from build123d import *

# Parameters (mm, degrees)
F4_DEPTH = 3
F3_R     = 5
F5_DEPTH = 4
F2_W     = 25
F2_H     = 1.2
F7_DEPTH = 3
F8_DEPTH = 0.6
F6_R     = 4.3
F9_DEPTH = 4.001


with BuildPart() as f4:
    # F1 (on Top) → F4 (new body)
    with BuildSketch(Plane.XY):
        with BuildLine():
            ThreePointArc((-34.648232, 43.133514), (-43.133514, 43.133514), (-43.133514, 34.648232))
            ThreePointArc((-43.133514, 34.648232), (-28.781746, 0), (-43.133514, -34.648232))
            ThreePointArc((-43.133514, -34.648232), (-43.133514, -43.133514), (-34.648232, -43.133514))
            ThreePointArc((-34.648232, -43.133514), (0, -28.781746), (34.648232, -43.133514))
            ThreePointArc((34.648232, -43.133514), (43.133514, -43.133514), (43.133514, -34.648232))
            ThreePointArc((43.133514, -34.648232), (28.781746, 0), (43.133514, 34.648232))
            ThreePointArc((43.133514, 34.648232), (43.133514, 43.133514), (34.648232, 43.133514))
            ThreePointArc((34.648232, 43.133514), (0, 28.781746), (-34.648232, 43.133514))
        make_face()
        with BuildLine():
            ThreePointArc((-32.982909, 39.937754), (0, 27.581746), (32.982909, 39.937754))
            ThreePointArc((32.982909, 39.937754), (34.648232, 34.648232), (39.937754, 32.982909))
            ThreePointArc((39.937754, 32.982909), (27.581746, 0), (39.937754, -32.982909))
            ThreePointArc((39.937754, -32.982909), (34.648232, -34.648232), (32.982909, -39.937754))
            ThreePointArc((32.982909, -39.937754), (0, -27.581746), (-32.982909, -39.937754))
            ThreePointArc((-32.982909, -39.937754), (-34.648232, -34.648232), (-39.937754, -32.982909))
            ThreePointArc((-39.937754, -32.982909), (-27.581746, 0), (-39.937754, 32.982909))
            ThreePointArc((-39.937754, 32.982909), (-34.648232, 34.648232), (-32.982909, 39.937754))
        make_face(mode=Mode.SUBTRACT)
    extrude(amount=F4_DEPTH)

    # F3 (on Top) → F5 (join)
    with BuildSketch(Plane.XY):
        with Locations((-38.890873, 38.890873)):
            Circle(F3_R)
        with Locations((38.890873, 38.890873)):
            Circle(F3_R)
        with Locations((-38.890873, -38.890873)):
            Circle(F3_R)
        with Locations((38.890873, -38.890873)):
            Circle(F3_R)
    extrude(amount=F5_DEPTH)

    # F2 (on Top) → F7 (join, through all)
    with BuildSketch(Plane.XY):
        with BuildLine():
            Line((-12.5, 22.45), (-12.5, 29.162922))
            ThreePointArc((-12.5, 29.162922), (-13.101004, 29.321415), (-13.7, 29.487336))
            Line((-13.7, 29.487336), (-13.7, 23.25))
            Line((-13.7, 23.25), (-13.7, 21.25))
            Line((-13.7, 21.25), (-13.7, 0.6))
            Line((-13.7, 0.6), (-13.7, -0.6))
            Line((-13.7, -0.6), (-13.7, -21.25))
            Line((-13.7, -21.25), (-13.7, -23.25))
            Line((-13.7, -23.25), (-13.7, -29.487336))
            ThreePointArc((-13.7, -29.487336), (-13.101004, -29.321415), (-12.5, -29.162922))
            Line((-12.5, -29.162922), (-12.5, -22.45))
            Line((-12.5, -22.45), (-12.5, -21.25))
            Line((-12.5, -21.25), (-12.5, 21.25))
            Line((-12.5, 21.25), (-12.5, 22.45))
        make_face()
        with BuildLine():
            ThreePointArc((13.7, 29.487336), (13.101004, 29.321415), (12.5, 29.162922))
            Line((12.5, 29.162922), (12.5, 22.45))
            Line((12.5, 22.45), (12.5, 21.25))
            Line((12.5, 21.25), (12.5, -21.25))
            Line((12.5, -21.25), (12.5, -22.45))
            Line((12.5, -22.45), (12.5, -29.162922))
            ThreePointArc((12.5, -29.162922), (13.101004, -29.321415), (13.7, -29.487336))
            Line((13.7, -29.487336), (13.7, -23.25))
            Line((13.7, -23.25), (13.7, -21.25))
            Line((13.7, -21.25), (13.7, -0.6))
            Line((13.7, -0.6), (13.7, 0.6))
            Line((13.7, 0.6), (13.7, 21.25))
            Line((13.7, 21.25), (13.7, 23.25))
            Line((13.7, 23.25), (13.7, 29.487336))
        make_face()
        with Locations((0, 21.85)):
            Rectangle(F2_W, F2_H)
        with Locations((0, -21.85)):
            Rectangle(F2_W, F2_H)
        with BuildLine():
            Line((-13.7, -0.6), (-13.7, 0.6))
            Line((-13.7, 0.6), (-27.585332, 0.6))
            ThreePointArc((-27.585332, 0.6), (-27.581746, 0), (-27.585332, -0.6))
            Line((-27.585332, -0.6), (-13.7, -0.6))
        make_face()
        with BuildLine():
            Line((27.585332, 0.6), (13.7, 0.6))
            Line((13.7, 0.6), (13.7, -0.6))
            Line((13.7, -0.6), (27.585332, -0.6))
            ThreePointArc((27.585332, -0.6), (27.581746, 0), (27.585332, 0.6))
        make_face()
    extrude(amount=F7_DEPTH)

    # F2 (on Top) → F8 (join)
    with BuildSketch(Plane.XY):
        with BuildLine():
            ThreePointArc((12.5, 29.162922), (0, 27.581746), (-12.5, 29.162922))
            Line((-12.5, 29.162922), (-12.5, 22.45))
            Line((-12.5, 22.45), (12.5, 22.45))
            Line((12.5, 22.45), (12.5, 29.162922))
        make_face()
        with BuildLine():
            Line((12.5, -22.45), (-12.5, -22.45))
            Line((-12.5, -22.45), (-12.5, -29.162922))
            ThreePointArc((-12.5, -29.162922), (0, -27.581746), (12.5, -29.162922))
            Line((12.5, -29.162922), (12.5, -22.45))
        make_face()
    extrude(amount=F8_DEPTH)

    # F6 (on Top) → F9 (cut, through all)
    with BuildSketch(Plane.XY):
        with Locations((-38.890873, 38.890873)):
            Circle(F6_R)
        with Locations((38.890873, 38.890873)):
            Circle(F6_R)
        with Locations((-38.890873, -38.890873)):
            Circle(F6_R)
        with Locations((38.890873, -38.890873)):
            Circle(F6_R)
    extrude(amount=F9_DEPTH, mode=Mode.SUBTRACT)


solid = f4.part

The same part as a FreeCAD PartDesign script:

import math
import FreeCAD as App
import Part
import Sketcher
Q = App.Units.Quantity

doc = App.newDocument("Part")
params = doc.addObject("Spreadsheet::Sheet", "Params")
for row, (alias, value) in enumerate([
    ("sketch1_radius", "6 mm"),
    ("sketch1_radius2", "48.999999 mm"),
    ("sketch1_radius3", "50.200001 mm"),
    ("pad1_length", "3 mm"),
    ("sketch2_diameter", "10 mm"),
    ("pad2_length", "4 mm"),
    ("sketch3_width", "25 mm"),
    ("sketch3_height", "42.5 mm"),
    ("pad3_length", "3 mm"),
    ("sketch4_width", "25 mm"),
    ("pad4_length", "0.6 mm"),
    ("sketch5_diameter", "8.6 mm"),
], start=1):
    params.set(f"A{row}", alias)
    params.set(f"B{row}", "=" + value)
    params.setAlias(f"B{row}", alias)

body = doc.addObject("PartDesign::Body", "Body")

# Sketch on XY plane
sketch1 = doc.addObject("Sketcher::SketchObject", "Sketch")
body.addObject(sketch1)
sketch1.AttachmentSupport = (doc.XY_Plane, [""])
sketch1.MapMode = "FlatFace"
sketch1.addGeometry(Part.ArcOfCircle(Part.Circle(App.Vector(-38.890873, 38.890873, 0), App.Vector(0, 0, 1), 6), math.radians(45), math.radians(225)), False)
sketch1.addGeometry(Part.ArcOfCircle(Part.Circle(App.Vector(-77.781745, 0, 0), App.Vector(0, 0, 1), 48.999999), math.radians(-45.000001), math.radians(45.000001)), False)
sketch1.addGeometry(Part.ArcOfCircle(Part.Circle(App.Vector(-38.890873, -38.890873, 0), App.Vector(0, 0, 1), 6), math.radians(135), math.radians(315)), False)
sketch1.addGeometry(Part.ArcOfCircle(Part.Circle(App.Vector(0, -77.781745, 0), App.Vector(0, 0, 1), 48.999999), math.radians(44.999999), math.radians(135.000001)), False)
sketch1.addGeometry(Part.ArcOfCircle(Part.Circle(App.Vector(38.890873, -38.890873, 0), App.Vector(0, 0, 1), 6), math.radians(-135), math.radians(45)), False)
sketch1.addGeometry(Part.ArcOfCircle(Part.Circle(App.Vector(77.781745, 0, 0), App.Vector(0, 0, 1), 48.999999), math.radians(134.999999), math.radians(225.000001)), False)
sketch1.addGeometry(Part.ArcOfCircle(Part.Circle(App.Vector(38.890873, 38.890873, 0), App.Vector(0, 0, 1), 6), math.radians(-45), math.radians(135)), False)
sketch1.addGeometry(Part.ArcOfCircle(Part.Circle(App.Vector(0, 77.781745, 0), App.Vector(0, 0, 1), 48.999999), math.radians(-135.000001), math.radians(-44.999999)), False)
sketch1.addGeometry(Part.ArcOfCircle(Part.Circle(App.Vector(-38.890872, 38.890872, 0), App.Vector(0, 0, 1), 5.999999), math.radians(-100.048419), math.radians(10.048419)), False)
sketch1.addGeometry(Part.ArcOfCircle(Part.Circle(App.Vector(0, 77.781747, 0), App.Vector(0, 0, 1), 50.200001), math.radians(-131.073759), math.radians(-48.926241)), False)
sketch1.addGeometry(Part.ArcOfCircle(Part.Circle(App.Vector(38.890872, 38.890872, 0), App.Vector(0, 0, 1), 5.999999), math.radians(169.951581), math.radians(280.048419)), False)
sketch1.addGeometry(Part.ArcOfCircle(Part.Circle(App.Vector(77.781747, 0, 0), App.Vector(0, 0, 1), 50.200001), math.radians(138.926241), math.radians(221.073759)), False)
sketch1.addGeometry(Part.ArcOfCircle(Part.Circle(App.Vector(38.890872, -38.890872, 0), App.Vector(0, 0, 1), 5.999999), math.radians(79.951581), math.radians(190.048419)), False)
sketch1.addGeometry(Part.ArcOfCircle(Part.Circle(App.Vector(0, -77.781747, 0), App.Vector(0, 0, 1), 50.200001), math.radians(48.926241), math.radians(131.073759)), False)
sketch1.addGeometry(Part.ArcOfCircle(Part.Circle(App.Vector(-38.890872, -38.890872, 0), App.Vector(0, 0, 1), 5.999999), math.radians(-10.048419), math.radians(100.048419)), False)
sketch1.addGeometry(Part.ArcOfCircle(Part.Circle(App.Vector(-77.781747, 0, 0), App.Vector(0, 0, 1), 50.200001), math.radians(-41.073759), math.radians(41.073759)), False)
sketch1.addConstraint(Sketcher.Constraint("Tangent", 0, 2, 1, 2))
sketch1.addConstraint(Sketcher.Constraint("Tangent", 1, 1, 2, 1))
sketch1.addConstraint(Sketcher.Constraint("Tangent", 2, 2, 3, 2))
sketch1.addConstraint(Sketcher.Constraint("Tangent", 3, 1, 4, 1))
sketch1.addConstraint(Sketcher.Constraint("Tangent", 4, 2, 5, 2))
sketch1.addConstraint(Sketcher.Constraint("Tangent", 5, 1, 6, 1))
sketch1.addConstraint(Sketcher.Constraint("Tangent", 6, 2, 7, 2))
sketch1.addConstraint(Sketcher.Constraint("Tangent", 7, 1, 0, 1))
sketch1.addConstraint(Sketcher.Constraint("Coincident", 8, 2, 9, 1))
sketch1.addConstraint(Sketcher.Constraint("Coincident", 9, 2, 10, 1))
sketch1.addConstraint(Sketcher.Constraint("Coincident", 10, 2, 11, 1))
sketch1.addConstraint(Sketcher.Constraint("Coincident", 11, 2, 12, 1))
sketch1.addConstraint(Sketcher.Constraint("Coincident", 12, 2, 13, 1))
sketch1.addConstraint(Sketcher.Constraint("Coincident", 13, 2, 14, 1))
sketch1.addConstraint(Sketcher.Constraint("Coincident", 14, 2, 15, 1))
sketch1.addConstraint(Sketcher.Constraint("Coincident", 15, 2, 8, 1))
sketch1.addConstraint(Sketcher.Constraint("Coincident", 8, 3, 0, 3))
sketch1.addConstraint(Sketcher.Constraint("Coincident", 9, 3, 7, 3))
sketch1.addConstraint(Sketcher.Constraint("Coincident", 10, 3, 6, 3))
sketch1.addConstraint(Sketcher.Constraint("Coincident", 11, 3, 5, 3))
sketch1.addConstraint(Sketcher.Constraint("Coincident", 12, 3, 4, 3))
sketch1.addConstraint(Sketcher.Constraint("Coincident", 13, 3, 3, 3))
sketch1.addConstraint(Sketcher.Constraint("Coincident", 14, 3, 2, 3))
sketch1.addConstraint(Sketcher.Constraint("Coincident", 15, 3, 1, 3))
sketch1.addConstraint(Sketcher.Constraint("Equal", 0, 2))
sketch1.addConstraint(Sketcher.Constraint("Equal", 1, 3))
sketch1.addConstraint(Sketcher.Constraint("Equal", 2, 4))
sketch1.addConstraint(Sketcher.Constraint("Equal", 3, 5))
sketch1.addConstraint(Sketcher.Constraint("Equal", 4, 6))
sketch1.addConstraint(Sketcher.Constraint("Equal", 5, 7))
sketch1.addConstraint(Sketcher.Constraint("Equal", 6, 8))
sketch1.addConstraint(Sketcher.Constraint("Equal", 8, 10))
sketch1.addConstraint(Sketcher.Constraint("Equal", 9, 11))
sketch1.addConstraint(Sketcher.Constraint("Equal", 10, 12))
sketch1.addConstraint(Sketcher.Constraint("Equal", 11, 13))
sketch1.addConstraint(Sketcher.Constraint("Equal", 12, 14))
sketch1.addConstraint(Sketcher.Constraint("Equal", 13, 15))
sketch1.addConstraint(Sketcher.Constraint("Symmetric", 0, 3, 4, 3, -1, 1))
sketch1.addConstraint(Sketcher.Constraint("Symmetric", 2, 3, 6, 3, -1, 1))
sketch1.addConstraint(Sketcher.Constraint("Symmetric", 2, 3, 4, 3, -2))
sketch1.addConstraint(Sketcher.Constraint("Radius", 0, Q("6 mm")))
sketch1.addConstraint(Sketcher.Constraint("Radius", 1, Q("48.999999 mm")))
sketch1.addConstraint(Sketcher.Constraint("Radius", 9, Q("50.200001 mm")))
sketch1.addConstraint(Sketcher.Constraint("DistanceY", 1, 1, -1, 1, Q("34.648232 mm")))
sketch1.addConstraint(Sketcher.Constraint("DistanceX", -1, 1, 3, 1, Q("34.648232 mm")))
sketch1.setExpression("Constraints[40]", "Params.sketch1_radius")
sketch1.setExpression("Constraints[41]", "Params.sketch1_radius2")
sketch1.setExpression("Constraints[42]", "Params.sketch1_radius3")
pad1 = doc.addObject("PartDesign::Pad", "Pad")
body.addObject(pad1)
pad1.Profile = sketch1
pad1.setExpression("Length", "Params.pad1_length")

# Sketch on XY plane
sketch2 = doc.addObject("Sketcher::SketchObject", "Sketch001")
body.addObject(sketch2)
sketch2.AttachmentSupport = (doc.XY_Plane, [""])
sketch2.MapMode = "FlatFace"
sketch2.addGeometry(Part.Circle(App.Vector(-38.890873, 38.890873, 0), App.Vector(0, 0, 1), 5), False)
sketch2.addGeometry(Part.Circle(App.Vector(38.890873, 38.890873, 0), App.Vector(0, 0, 1), 5), False)
sketch2.addGeometry(Part.Circle(App.Vector(-38.890873, -38.890873, 0), App.Vector(0, 0, 1), 5), False)
sketch2.addGeometry(Part.Circle(App.Vector(38.890873, -38.890873, 0), App.Vector(0, 0, 1), 5), False)
sketch2.addConstraint(Sketcher.Constraint("Equal", 0, 1))
sketch2.addConstraint(Sketcher.Constraint("Equal", 1, 2))
sketch2.addConstraint(Sketcher.Constraint("Equal", 2, 3))
sketch2.addConstraint(Sketcher.Constraint("Symmetric", 1, 3, 2, 3, -1, 1))
sketch2.addConstraint(Sketcher.Constraint("Symmetric", 0, 3, 3, 3, -1, 1))
sketch2.addConstraint(Sketcher.Constraint("Symmetric", 0, 3, 1, 3, -2))
sketch2.addConstraint(Sketcher.Constraint("Diameter", 0, Q("10 mm")))
sketch2.addConstraint(Sketcher.Constraint("DistanceX", 0, 3, -1, 1, Q("38.890873 mm")))
sketch2.addConstraint(Sketcher.Constraint("DistanceY", -1, 1, 0, 3, Q("38.890873 mm")))
sketch2.setExpression("Constraints[6]", "Params.sketch2_diameter")
pad2 = doc.addObject("PartDesign::Pad", "Pad001")
body.addObject(pad2)
pad2.Profile = sketch2
pad2.setExpression("Length", "Params.pad2_length")

# Sketch on XY plane
sketch3 = doc.addObject("Sketcher::SketchObject", "Sketch002")
body.addObject(sketch3)
sketch3.AttachmentSupport = (doc.XY_Plane, [""])
sketch3.MapMode = "FlatFace"
sketch3.addGeometry(Part.ArcOfCircle(Part.Circle(App.Vector(0.001895, 77.78874, 0), App.Vector(0, 0, 1), 50.207246), math.radians(-105.837307), math.radians(-104.418688)), False)
sketch3.addGeometry(Part.LineSegment(App.Vector(-13.7, 29.487336, 0), App.Vector(-13.7, 0.6, 0)), False)
sketch3.addGeometry(Part.LineSegment(App.Vector(-13.7, 0.6, 0), App.Vector(-27.585332, 0.6, 0)), False)
sketch3.addGeometry(Part.ArcOfCircle(Part.Circle(App.Vector(-77.778743, 0, 0), App.Vector(0, 0, 1), 50.196997), math.radians(-0.684867), math.radians(0.684867)), False)
sketch3.addGeometry(Part.LineSegment(App.Vector(-27.585332, -0.6, 0), App.Vector(-13.7, -0.6, 0)), False)
sketch3.addGeometry(Part.LineSegment(App.Vector(-13.7, -0.6, 0), App.Vector(-13.7, -29.487336, 0)), False)
sketch3.addGeometry(Part.ArcOfCircle(Part.Circle(App.Vector(0.001895, -77.78874, 0), App.Vector(0, 0, 1), 50.207246), math.radians(104.418688), math.radians(105.837307)), False)
sketch3.addGeometry(Part.LineSegment(App.Vector(-12.5, -29.162922, 0), App.Vector(-12.5, -22.45, 0)), False)
sketch3.addGeometry(Part.LineSegment(App.Vector(-12.5, -22.45, 0), App.Vector(12.5, -22.45, 0)), False)
sketch3.addGeometry(Part.LineSegment(App.Vector(12.5, -22.45, 0), App.Vector(12.5, -29.162922, 0)), False)
sketch3.addGeometry(Part.ArcOfCircle(Part.Circle(App.Vector(-0.001895, -77.78874, 0), App.Vector(0, 0, 1), 50.207246), math.radians(74.162693), math.radians(75.581312)), False)
sketch3.addGeometry(Part.LineSegment(App.Vector(13.7, -29.487336, 0), App.Vector(13.7, -0.6, 0)), False)
sketch3.addGeometry(Part.LineSegment(App.Vector(13.7, -0.6, 0), App.Vector(27.585332, -0.6, 0)), False)
sketch3.addGeometry(Part.ArcOfCircle(Part.Circle(App.Vector(77.778743, 0, 0), App.Vector(0, 0, 1), 50.196997), math.radians(179.315133), math.radians(180.684867)), False)
sketch3.addGeometry(Part.LineSegment(App.Vector(27.585332, 0.6, 0), App.Vector(13.7, 0.6, 0)), False)
sketch3.addGeometry(Part.LineSegment(App.Vector(13.7, 0.6, 0), App.Vector(13.7, 29.487336, 0)), False)
sketch3.addGeometry(Part.ArcOfCircle(Part.Circle(App.Vector(-0.001895, 77.78874, 0), App.Vector(0, 0, 1), 50.207246), math.radians(-75.581312), math.radians(-74.162693)), False)
sketch3.addGeometry(Part.LineSegment(App.Vector(12.5, 29.162922, 0), App.Vector(12.5, 22.45, 0)), False)
sketch3.addGeometry(Part.LineSegment(App.Vector(12.5, 22.45, 0), App.Vector(-12.5, 22.45, 0)), False)
sketch3.addGeometry(Part.LineSegment(App.Vector(-12.5, 22.45, 0), App.Vector(-12.5, 29.162922, 0)), False)
sketch3.addGeometry(Part.LineSegment(App.Vector(-12.5, -21.25, 0), App.Vector(-12.5, 21.25, 0)), False)
sketch3.addGeometry(Part.LineSegment(App.Vector(-12.5, 21.25, 0), App.Vector(12.5, 21.25, 0)), False)
sketch3.addGeometry(Part.LineSegment(App.Vector(12.5, 21.25, 0), App.Vector(12.5, -21.25, 0)), False)
sketch3.addGeometry(Part.LineSegment(App.Vector(12.5, -21.25, 0), App.Vector(-12.5, -21.25, 0)), False)
sketch3.addConstraint(Sketcher.Constraint("Coincident", 0, 1, 1, 1))
sketch3.addConstraint(Sketcher.Constraint("Coincident", 1, 2, 2, 1))
sketch3.addConstraint(Sketcher.Constraint("Coincident", 2, 2, 3, 2))
sketch3.addConstraint(Sketcher.Constraint("Coincident", 3, 1, 4, 1))
sketch3.addConstraint(Sketcher.Constraint("Coincident", 4, 2, 5, 1))
sketch3.addConstraint(Sketcher.Constraint("Coincident", 5, 2, 6, 2))
sketch3.addConstraint(Sketcher.Constraint("Coincident", 6, 1, 7, 1))
sketch3.addConstraint(Sketcher.Constraint("Coincident", 7, 2, 8, 1))
sketch3.addConstraint(Sketcher.Constraint("Coincident", 8, 2, 9, 1))
sketch3.addConstraint(Sketcher.Constraint("Coincident", 9, 2, 10, 2))
sketch3.addConstraint(Sketcher.Constraint("Coincident", 10, 1, 11, 1))
sketch3.addConstraint(Sketcher.Constraint("Coincident", 11, 2, 12, 1))
sketch3.addConstraint(Sketcher.Constraint("Coincident", 12, 2, 13, 2))
sketch3.addConstraint(Sketcher.Constraint("Coincident", 13, 1, 14, 1))
sketch3.addConstraint(Sketcher.Constraint("Coincident", 14, 2, 15, 1))
sketch3.addConstraint(Sketcher.Constraint("Coincident", 15, 2, 16, 2))
sketch3.addConstraint(Sketcher.Constraint("Coincident", 16, 1, 17, 1))
sketch3.addConstraint(Sketcher.Constraint("Coincident", 17, 2, 18, 1))
sketch3.addConstraint(Sketcher.Constraint("Coincident", 18, 2, 19, 1))
sketch3.addConstraint(Sketcher.Constraint("Coincident", 19, 2, 0, 2))
sketch3.addConstraint(Sketcher.Constraint("Coincident", 20, 2, 21, 1))
sketch3.addConstraint(Sketcher.Constraint("Coincident", 21, 2, 22, 1))
sketch3.addConstraint(Sketcher.Constraint("Coincident", 22, 2, 23, 1))
sketch3.addConstraint(Sketcher.Constraint("Coincident", 23, 2, 20, 1))
sketch3.addConstraint(Sketcher.Constraint("Vertical", 1))
sketch3.addConstraint(Sketcher.Constraint("Horizontal", 2))
sketch3.addConstraint(Sketcher.Constraint("Horizontal", 4))
sketch3.addConstraint(Sketcher.Constraint("Vertical", 5))
sketch3.addConstraint(Sketcher.Constraint("Vertical", 7))
sketch3.addConstraint(Sketcher.Constraint("Horizontal", 8))
sketch3.addConstraint(Sketcher.Constraint("Vertical", 9))
sketch3.addConstraint(Sketcher.Constraint("Vertical", 11))
sketch3.addConstraint(Sketcher.Constraint("Horizontal", 12))
sketch3.addConstraint(Sketcher.Constraint("Horizontal", 14))
sketch3.addConstraint(Sketcher.Constraint("Vertical", 15))
sketch3.addConstraint(Sketcher.Constraint("Vertical", 17))
sketch3.addConstraint(Sketcher.Constraint("Horizontal", 18))
sketch3.addConstraint(Sketcher.Constraint("Vertical", 19))
sketch3.addConstraint(Sketcher.Constraint("Vertical", 20))
sketch3.addConstraint(Sketcher.Constraint("Horizontal", 21))
sketch3.addConstraint(Sketcher.Constraint("Vertical", 22))
sketch3.addConstraint(Sketcher.Constraint("Horizontal", 23))
sketch3.addConstraint(Sketcher.Constraint("Equal", 0, 6))
sketch3.addConstraint(Sketcher.Constraint("Equal", 6, 10))
sketch3.addConstraint(Sketcher.Constraint("Equal", 3, 13))
sketch3.addConstraint(Sketcher.Constraint("Equal", 10, 16))
sketch3.addConstraint(Sketcher.Constraint("Symmetric", 0, 3, 10, 3, -1, 1))
sketch3.addConstraint(Sketcher.Constraint("Symmetric", 3, 3, 13, 3, -1, 1))
sketch3.addConstraint(Sketcher.Constraint("Symmetric", 6, 3, 16, 3, -1, 1))
sketch3.addConstraint(Sketcher.Constraint("Symmetric", 1, 2, 11, 2, -1, 1))
sketch3.addConstraint(Sketcher.Constraint("Symmetric", 4, 2, 14, 2, -1, 1))
sketch3.addConstraint(Sketcher.Constraint("Symmetric", 7, 2, 17, 2, -1, 1))
sketch3.addConstraint(Sketcher.Constraint("Symmetric", 20, 2, 22, 2, -1, 1))
sketch3.addConstraint(Sketcher.Constraint("Symmetric", 6, 3, 10, 3, -2))
sketch3.addConstraint(Sketcher.Constraint("Symmetric", 4, 2, 11, 2, -2))
sketch3.addConstraint(Sketcher.Constraint("PointOnObject", 3, 3, -1))
sketch3.addConstraint(Sketcher.Constraint("Horizontal", 6, 1, 9, 2))
sketch3.addConstraint(Sketcher.Constraint("Horizontal", 16, 1, 19, 2))
sketch3.addConstraint(Sketcher.Constraint("Vertical", 19, 2, 20, 2))
sketch3.addConstraint(Sketcher.Constraint("DistanceX", 8, 1, 8, 2, Q("25 mm")))
sketch3.addConstraint(Sketcher.Constraint("DistanceY", 20, 1, 20, 2, Q("42.5 mm")))
sketch3.addConstraint(Sketcher.Constraint("DistanceX", 0, 1, -1, 1, Q("13.7 mm")))
sketch3.addConstraint(Sketcher.Constraint("DistanceY", -1, 1, 1, 2, Q("0.6 mm")))
sketch3.addConstraint(Sketcher.Constraint("DistanceY", 20, 2, 18, 2, Q("1.2 mm")))
sketch3.addConstraint(Sketcher.Constraint("Radius", 0, Q("50.207246 mm")))
sketch3.addConstraint(Sketcher.Constraint("Radius", 3, Q("50.196997 mm")))
sketch3.addConstraint(Sketcher.Constraint("DistanceY", 7, 1, 7, 2, Q("6.712922 mm")))
sketch3.addConstraint(Sketcher.Constraint("DistanceX", 2, 2, 2, 1, Q("13.885332 mm")))
sketch3.addConstraint(Sketcher.Constraint("DistanceY", 1, 2, 1, 1, Q("28.887336 mm")))
sketch3.setExpression("Constraints[59]", "Params.sketch3_width")
sketch3.setExpression("Constraints[60]", "Params.sketch3_height")
pad3 = doc.addObject("PartDesign::Pad", "Pad002")
body.addObject(pad3)
pad3.Profile = sketch3
pad3.setExpression("Length", "Params.pad3_length")

# Sketch on XY plane
sketch4 = doc.addObject("Sketcher::SketchObject", "Sketch003")
body.addObject(sketch4)
sketch4.AttachmentSupport = (doc.XY_Plane, [""])
sketch4.MapMode = "FlatFace"
sketch4.addGeometry(Part.ArcOfCircle(Part.Circle(App.Vector(0, 77.781761, 0), App.Vector(0, 0, 1), 50.200015), math.radians(-104.418577), math.radians(-75.581423)), False)
sketch4.addGeometry(Part.LineSegment(App.Vector(-12.5, 29.162922, 0), App.Vector(-12.5, 22.45, 0)), False)
sketch4.addGeometry(Part.LineSegment(App.Vector(-12.5, 22.45, 0), App.Vector(12.5, 22.45, 0)), False)
sketch4.addGeometry(Part.LineSegment(App.Vector(12.5, 22.45, 0), App.Vector(12.5, 29.162922, 0)), False)
sketch4.addGeometry(Part.LineSegment(App.Vector(12.5, -22.45, 0), App.Vector(-12.5, -22.45, 0)), False)
sketch4.addGeometry(Part.LineSegment(App.Vector(-12.5, -22.45, 0), App.Vector(-12.5, -29.162922, 0)), False)
sketch4.addGeometry(Part.ArcOfCircle(Part.Circle(App.Vector(0, -77.781761, 0), App.Vector(0, 0, 1), 50.200015), math.radians(75.581423), math.radians(104.418577)), False)
sketch4.addGeometry(Part.LineSegment(App.Vector(12.5, -29.162922, 0), App.Vector(12.5, -22.45, 0)), False)
sketch4.addConstraint(Sketcher.Constraint("Coincident", 0, 1, 1, 1))
sketch4.addConstraint(Sketcher.Constraint("Coincident", 1, 2, 2, 1))
sketch4.addConstraint(Sketcher.Constraint("Coincident", 2, 2, 3, 1))
sketch4.addConstraint(Sketcher.Constraint("Coincident", 3, 2, 0, 2))
sketch4.addConstraint(Sketcher.Constraint("Coincident", 4, 2, 5, 1))
sketch4.addConstraint(Sketcher.Constraint("Coincident", 5, 2, 6, 2))
sketch4.addConstraint(Sketcher.Constraint("Coincident", 6, 1, 7, 1))
sketch4.addConstraint(Sketcher.Constraint("Coincident", 7, 2, 4, 1))
sketch4.addConstraint(Sketcher.Constraint("Vertical", 1))
sketch4.addConstraint(Sketcher.Constraint("Horizontal", 2))
sketch4.addConstraint(Sketcher.Constraint("Vertical", 3))
sketch4.addConstraint(Sketcher.Constraint("Horizontal", 4))
sketch4.addConstraint(Sketcher.Constraint("Vertical", 5))
sketch4.addConstraint(Sketcher.Constraint("Vertical", 7))
sketch4.addConstraint(Sketcher.Constraint("Equal", 0, 6))
sketch4.addConstraint(Sketcher.Constraint("Symmetric", 0, 3, 6, 3, -1, 1))
sketch4.addConstraint(Sketcher.Constraint("Symmetric", 2, 2, 4, 2, -1, 1))
sketch4.addConstraint(Sketcher.Constraint("Symmetric", 0, 1, 3, 2, -2))
sketch4.addConstraint(Sketcher.Constraint("Horizontal", 5, 2, 6, 1))
sketch4.addConstraint(Sketcher.Constraint("DistanceX", 2, 1, 2, 2, Q("25 mm")))
sketch4.addConstraint(Sketcher.Constraint("DistanceY", 4, 2, 1, 2, Q("44.9 mm")))
sketch4.addConstraint(Sketcher.Constraint("Radius", 0, Q("50.200015 mm")))
sketch4.addConstraint(Sketcher.Constraint("DistanceY", 1, 2, 1, 1, Q("6.712922 mm")))
sketch4.setExpression("Constraints[19]", "Params.sketch4_width")
pad4 = doc.addObject("PartDesign::Pad", "Pad003")
body.addObject(pad4)
pad4.Profile = sketch4
pad4.setExpression("Length", "Params.pad4_length")

# Sketch on XY plane
sketch5 = doc.addObject("Sketcher::SketchObject", "Sketch004")
body.addObject(sketch5)
sketch5.AttachmentSupport = (doc.XY_Plane, [""])
sketch5.MapMode = "FlatFace"
sketch5.addGeometry(Part.Circle(App.Vector(-38.890873, 38.890873, 0), App.Vector(0, 0, 1), 4.3), False)
sketch5.addGeometry(Part.Circle(App.Vector(38.890873, 38.890873, 0), App.Vector(0, 0, 1), 4.3), False)
sketch5.addGeometry(Part.Circle(App.Vector(-38.890873, -38.890873, 0), App.Vector(0, 0, 1), 4.3), False)
sketch5.addGeometry(Part.Circle(App.Vector(38.890873, -38.890873, 0), App.Vector(0, 0, 1), 4.3), False)
sketch5.addConstraint(Sketcher.Constraint("Equal", 0, 1))
sketch5.addConstraint(Sketcher.Constraint("Equal", 1, 2))
sketch5.addConstraint(Sketcher.Constraint("Equal", 2, 3))
sketch5.addConstraint(Sketcher.Constraint("Symmetric", 1, 3, 2, 3, -1, 1))
sketch5.addConstraint(Sketcher.Constraint("Symmetric", 0, 3, 3, 3, -1, 1))
sketch5.addConstraint(Sketcher.Constraint("Symmetric", 0, 3, 1, 3, -2))
sketch5.addConstraint(Sketcher.Constraint("Diameter", 0, Q("8.6 mm")))
sketch5.addConstraint(Sketcher.Constraint("DistanceX", 0, 3, -1, 1, Q("38.890873 mm")))
sketch5.addConstraint(Sketcher.Constraint("DistanceY", -1, 1, 0, 3, Q("38.890873 mm")))
sketch5.setExpression("Constraints[6]", "Params.sketch5_diameter")
pocket1 = doc.addObject("PartDesign::Pocket", "Pocket")
body.addObject(pocket1)
pocket1.Profile = sketch5
pocket1.Type = "ThroughAll"
pocket1.Reversed = True

doc.recompute()
